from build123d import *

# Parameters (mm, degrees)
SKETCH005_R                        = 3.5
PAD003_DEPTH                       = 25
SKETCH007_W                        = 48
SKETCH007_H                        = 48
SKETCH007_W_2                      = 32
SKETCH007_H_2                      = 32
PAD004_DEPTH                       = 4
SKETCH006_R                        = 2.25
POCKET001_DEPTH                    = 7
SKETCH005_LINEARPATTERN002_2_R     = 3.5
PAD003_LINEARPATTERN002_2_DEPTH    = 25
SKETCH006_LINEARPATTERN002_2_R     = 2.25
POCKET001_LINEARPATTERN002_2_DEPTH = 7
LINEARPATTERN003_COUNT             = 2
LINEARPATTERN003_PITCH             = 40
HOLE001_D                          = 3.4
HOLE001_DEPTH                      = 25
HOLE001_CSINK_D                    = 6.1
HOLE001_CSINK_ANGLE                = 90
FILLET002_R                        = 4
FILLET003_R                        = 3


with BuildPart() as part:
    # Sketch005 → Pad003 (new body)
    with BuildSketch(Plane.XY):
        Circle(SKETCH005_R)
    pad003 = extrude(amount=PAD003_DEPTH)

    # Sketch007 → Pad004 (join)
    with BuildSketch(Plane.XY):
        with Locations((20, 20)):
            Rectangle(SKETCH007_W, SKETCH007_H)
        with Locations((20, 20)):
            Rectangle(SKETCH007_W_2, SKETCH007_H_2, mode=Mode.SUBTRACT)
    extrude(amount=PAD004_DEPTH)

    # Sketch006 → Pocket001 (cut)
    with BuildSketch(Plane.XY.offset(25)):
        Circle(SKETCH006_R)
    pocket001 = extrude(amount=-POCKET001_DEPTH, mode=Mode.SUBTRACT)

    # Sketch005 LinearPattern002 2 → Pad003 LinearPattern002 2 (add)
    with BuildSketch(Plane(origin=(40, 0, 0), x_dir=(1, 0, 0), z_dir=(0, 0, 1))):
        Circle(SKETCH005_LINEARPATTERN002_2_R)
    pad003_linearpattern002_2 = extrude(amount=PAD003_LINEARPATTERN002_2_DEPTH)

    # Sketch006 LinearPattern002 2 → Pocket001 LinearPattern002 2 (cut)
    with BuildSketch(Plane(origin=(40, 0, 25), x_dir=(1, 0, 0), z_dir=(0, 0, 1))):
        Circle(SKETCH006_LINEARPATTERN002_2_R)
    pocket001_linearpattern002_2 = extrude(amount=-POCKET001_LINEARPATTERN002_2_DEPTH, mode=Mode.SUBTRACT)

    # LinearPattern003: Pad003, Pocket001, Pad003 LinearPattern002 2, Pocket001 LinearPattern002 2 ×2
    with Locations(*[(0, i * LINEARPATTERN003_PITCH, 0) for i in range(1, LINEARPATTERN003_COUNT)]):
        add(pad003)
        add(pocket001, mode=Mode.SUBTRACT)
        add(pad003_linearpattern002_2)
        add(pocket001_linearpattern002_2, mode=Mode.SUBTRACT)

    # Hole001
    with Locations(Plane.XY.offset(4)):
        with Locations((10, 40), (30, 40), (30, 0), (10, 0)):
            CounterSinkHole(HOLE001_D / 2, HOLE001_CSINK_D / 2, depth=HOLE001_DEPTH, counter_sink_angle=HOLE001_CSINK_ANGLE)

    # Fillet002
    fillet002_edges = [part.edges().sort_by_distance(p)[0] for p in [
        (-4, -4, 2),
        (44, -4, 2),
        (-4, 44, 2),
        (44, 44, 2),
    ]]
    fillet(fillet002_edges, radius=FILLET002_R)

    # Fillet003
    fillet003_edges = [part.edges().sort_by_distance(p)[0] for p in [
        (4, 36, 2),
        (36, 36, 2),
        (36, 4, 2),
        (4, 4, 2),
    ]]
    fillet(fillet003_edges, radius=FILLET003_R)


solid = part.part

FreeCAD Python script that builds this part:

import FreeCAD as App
import Part
import Sketcher
from FreeCAD import Vector
Q = App.Units.Quantity


def edges_at(feature, points):
    """Names of the edges that pass closest to the given points."""
    edges = feature.Shape.Edges
    near = lambda p: min(range(len(edges)), key=lambda i: edges[i].distToShape(Part.Vertex(*p))[0])
    return sorted({f"Edge{near(p) + 1}" for p in points})


def add_polygon(sketch, points):
    """Adds a closed chain of lines whose ends are joined by coincident constraints."""
    first, n = sketch.GeometryCount, len(points)
    for a, b in zip(points, points[1:] + points[:1]):
        sketch.addGeometry(Part.LineSegment(App.Vector(*a, 0), App.Vector(*b, 0)), False)
    for i in range(n):
        sketch.addConstraint(Sketcher.Constraint("Coincident", first + i, 2, first + (i + 1) % n, 1))

doc = App.newDocument("Part")
params = doc.addObject("Spreadsheet::Sheet", "Params")
for row, (alias, value) in enumerate([
    ("sketch1_diameter", "7 mm"),
    ("pad1_length", "25 mm"),
    ("sketch2_width", "48 mm"),
    ("sketch2_width2", "32 mm"),
    ("pad2_length", "4 mm"),
    ("sketch3_diameter", "4.5 mm"),
    ("pocket1_length", "7 mm"),
    ("sketch4_diameter", "7 mm"),
    ("pad3_length", "25 mm"),
    ("sketch5_diameter", "4.5 mm"),
    ("pocket2_length", "7 mm"),
    ("linearpattern_pitch", "40 mm"),
    ("sketch6_diameter", "3.4 mm"),
    ("hole_diameter", "3.4 mm"),
    ("hole_depth", "25 mm"),
    ("hole_csink_diameter", "6.1 mm"),
    ("fillet_radius", "4 mm"),
    ("fillet2_radius", "3 mm"),
], start=1):
    params.set(f"A{row}", alias)
    params.set(f"B{row}", "=" + value)
    params.setAlias(f"B{row}", alias)

body = doc.addObject("PartDesign::Body", "Body")

# Sketch on XY plane
sketch1 = body.newObject("Sketcher::SketchObject", "Sketch")
sketch1.AttachmentSupport = (doc.getObject("XY_Plane"), [""])
sketch1.MapMode = "FlatFace"
sketch1.addGeometry(Part.Circle(Vector(0, 0, 0), Vector(0, 0, 1), 3.5), False)
sketch1.addConstraint([
    Sketcher.Constraint("Coincident", 0, 3, -1, 1),
    Sketcher.Constraint("Diameter", 0, Q("7 mm")),
])
sketch1.setExpression("Constraints[1]", "Params.sketch1_diameter")
pad1 = body.newObject("PartDesign::Pad", "Pad")
pad1.Profile = sketch1
pad1.setExpression("Length", "Params.pad1_length")

# Sketch on XY plane
sketch2 = body.newObject("Sketcher::SketchObject", "Sketch001")
sketch2.AttachmentSupport = (doc.getObject("XY_Plane"), [""])
sketch2.MapMode = "FlatFace"
add_polygon(sketch2, [(-4, 44), (-4, -4), (44, -4), (44, 44)])  # lines 0-3
add_polygon(sketch2, [(36, 4), (4, 4), (4, 36), (36, 36)])  # lines 4-7
sketch2.addConstraint([
    Sketcher.Constraint("Vertical", 0),
    Sketcher.Constraint("Horizontal", 1),
    Sketcher.Constraint("Vertical", 2),
    Sketcher.Constraint("Horizontal", 3),
    Sketcher.Constraint("Horizontal", 4),
    Sketcher.Constraint("Vertical", 5),
    Sketcher.Constraint("Horizontal", 6),
    Sketcher.Constraint("Vertical", 7),
    Sketcher.Constraint("Symmetric", 0, 2, 4, 2, -1, 1),
    Sketcher.Constraint("Equal", 3, 0),
    Sketcher.Constraint("Equal", 6, 5),
    Sketcher.Constraint("DistanceX", 1, 1, 1, 2, Q("48 mm")),
    Sketcher.Constraint("DistanceX", 4, 2, 4, 1, Q("32 mm")),
    Sketcher.Constraint("DistanceX", 0, 2, -1, 1, Q("4 mm")),
    Sketcher.Constraint("DistanceY", 0, 2, -1, 1, Q("4 mm")),
])
sketch2.setExpression("Constraints[19]", "Params.sketch2_width")
sketch2.setExpression("Constraints[20]", "Params.sketch2_width2")
pad2 = body.newObject("PartDesign::Pad", "Pad001")
pad2.Profile = sketch2
pad2.setExpression("Length", "Params.pad2_length")

# Sketch on XY plane
sketch3 = body.newObject("Sketcher::SketchObject", "Sketch002")
sketch3.AttachmentSupport = (doc.getObject("XY_Plane"), [""])
sketch3.MapMode = "FlatFace"
sketch3.AttachmentOffset = App.Placement(Vector(0, 0, 25), App.Rotation())
sketch3.addGeometry(Part.Circle(Vector(0, 0, 0), Vector(0, 0, 1), 2.2), False)
sketch3.addConstraint([
    Sketcher.Constraint("Coincident", 0, 3, -1, 1),
    Sketcher.Constraint("Diameter", 0, Q("4.5 mm")),
])
sketch3.setExpression("Constraints[1]", "Params.sketch3_diameter")
pocket1 = body.newObject("PartDesign::Pocket", "Pocket")
pocket1.Profile = sketch3
pocket1.setExpression("Length", "Params.pocket1_length")

# Sketch on XY plane
sketch4 = body.newObject("Sketcher::SketchObject", "Sketch003")
sketch4.AttachmentSupport = (doc.getObject("XY_Plane"), [""])
sketch4.MapMode = "FlatFace"
sketch4.addGeometry(Part.Circle(Vector(40, 0, 0), Vector(0, 0, 1), 3.5), False)
sketch4.addConstraint([
    Sketcher.Constraint("PointOnObject", 0, 3, -1),
    Sketcher.Constraint("Diameter", 0, Q("7 mm")),
    Sketcher.Constraint("DistanceX", -1, 1, 0, 3, Q("40 mm")),
])
sketch4.setExpression("Constraints[1]", "Params.sketch4_diameter")
pad3 = body.newObject("PartDesign::Pad", "Pad002")
pad3.Profile = sketch4
pad3.setExpression("Length", "Params.pad3_length")

# Sketch on XY plane
sketch5 = body.newObject("Sketcher::SketchObject", "Sketch004")
sketch5.AttachmentSupport = (doc.getObject("XY_Plane"), [""])
sketch5.MapMode = "FlatFace"
sketch5.AttachmentOffset = App.Placement(Vector(0, 0, 25), App.Rotation())
sketch5.addGeometry(Part.Circle(Vector(40, 0, 0), Vector(0, 0, 1), 2.2), False)
sketch5.addConstraint([
    Sketcher.Constraint("PointOnObject", 0, 3, -1),
    Sketcher.Constraint("Diameter", 0, Q("4.5 mm")),
    Sketcher.Constraint("DistanceX", -1, 1, 0, 3, Q("40 mm")),
])
sketch5.setExpression("Constraints[1]", "Params.sketch5_diameter")
pocket2 = body.newObject("PartDesign::Pocket", "Pocket001")
pocket2.Profile = sketch5
pocket2.setExpression("Length", "Params.pocket2_length")
doc.recompute()

linearpattern = body.newObject("PartDesign::LinearPattern", "LinearPattern")
linearpattern.Originals = [pad1, pocket1, pad3, pocket2]
linearpattern.Direction = (doc.getObject("Y_Axis"), [""])
linearpattern.Mode = "offset"
linearpattern.setExpression("Offset", "Params.linearpattern_pitch")
linearpattern.Occurrences = 2
body.Tip = linearpattern

# Sketch on XY plane
sketch6 = body.newObject("Sketcher::SketchObject", "Sketch005")
sketch6.AttachmentSupport = (doc.getObject("XY_Plane"), [""])
sketch6.MapMode = "FlatFace"
sketch6.AttachmentOffset = App.Placement(Vector(0, 0, 4), App.Rotation())
sketch6.addGeometry([
    Part.Circle(Vector(10, 40, 0), Vector(0, 0, 1), 1.7),
    Part.Circle(Vector(30, 40, 0), Vector(0, 0, 1), 1.7),
    Part.Circle(Vector(30, 0, 0), Vector(0, 0, 1), 1.7),
    Part.Circle(Vector(10, 0, 0), Vector(0, 0, 1), 1.7),
], False)
sketch6.addConstraint([
    Sketcher.Constraint("Equal", 0, 1),
    Sketcher.Constraint("Equal", 1, 2),
    Sketcher.Constraint("Equal", 2, 3),
    Sketcher.Constraint("PointOnObject", 2, 3, -1),
    Sketcher.Constraint("PointOnObject", 3, 3, -1),
    Sketcher.Constraint("Horizontal", 0, 3, 1, 3),
    Sketcher.Constraint("Vertical", 1, 3, 2, 3),
    Sketcher.Constraint("Vertical", 0, 3, 3, 3),
    Sketcher.Constraint("Diameter", 0, Q("3.4 mm")),
    Sketcher.Constraint("DistanceX", -1, 1, 0, 3, Q("10 mm")),
    Sketcher.Constraint("DistanceY", -1, 1, 0, 3, Q("40 mm")),
    Sketcher.Constraint("DistanceX", -1, 1, 1, 3, Q("30 mm")),
])
sketch6.setExpression("Constraints[8]", "Params.sketch6_diameter")
doc.recompute()
hole = body.newObject("PartDesign::Hole", "Hole")
hole.Profile = sketch6
hole.ThreadType = "None"
hole.setExpression("Diameter", "Params.hole_diameter")
hole.DepthType = "Dimension"
hole.setExpression("Depth", "Params.hole_depth")
hole.DrillPoint = "Flat"
hole.HoleCutType = "Countersink"
hole.setExpression("HoleCutDiameter", "Params.hole_csink_diameter")
hole.HoleCutCountersinkAngle = 90
doc.recompute()

fillet = body.newObject("PartDesign::Fillet", "Fillet")
fillet.Base = (hole, edges_at(hole, [
    (-4, -4, 2),
    (44, -4, 2),
    (-4, 44, 2),
    (44, 44, 2),
]))
fillet.setExpression("Radius", "Params.fillet_radius")
doc.recompute()

fillet2 = body.newObject("PartDesign::Fillet", "Fillet001")
fillet2.Base = (fillet, edges_at(fillet, [
    (4, 36, 2),
    (36, 36, 2),
    (36, 4, 2),
    (4, 4, 2),
]))
fillet2.setExpression("Radius", "Params.fillet2_radius")

doc.recompute()
